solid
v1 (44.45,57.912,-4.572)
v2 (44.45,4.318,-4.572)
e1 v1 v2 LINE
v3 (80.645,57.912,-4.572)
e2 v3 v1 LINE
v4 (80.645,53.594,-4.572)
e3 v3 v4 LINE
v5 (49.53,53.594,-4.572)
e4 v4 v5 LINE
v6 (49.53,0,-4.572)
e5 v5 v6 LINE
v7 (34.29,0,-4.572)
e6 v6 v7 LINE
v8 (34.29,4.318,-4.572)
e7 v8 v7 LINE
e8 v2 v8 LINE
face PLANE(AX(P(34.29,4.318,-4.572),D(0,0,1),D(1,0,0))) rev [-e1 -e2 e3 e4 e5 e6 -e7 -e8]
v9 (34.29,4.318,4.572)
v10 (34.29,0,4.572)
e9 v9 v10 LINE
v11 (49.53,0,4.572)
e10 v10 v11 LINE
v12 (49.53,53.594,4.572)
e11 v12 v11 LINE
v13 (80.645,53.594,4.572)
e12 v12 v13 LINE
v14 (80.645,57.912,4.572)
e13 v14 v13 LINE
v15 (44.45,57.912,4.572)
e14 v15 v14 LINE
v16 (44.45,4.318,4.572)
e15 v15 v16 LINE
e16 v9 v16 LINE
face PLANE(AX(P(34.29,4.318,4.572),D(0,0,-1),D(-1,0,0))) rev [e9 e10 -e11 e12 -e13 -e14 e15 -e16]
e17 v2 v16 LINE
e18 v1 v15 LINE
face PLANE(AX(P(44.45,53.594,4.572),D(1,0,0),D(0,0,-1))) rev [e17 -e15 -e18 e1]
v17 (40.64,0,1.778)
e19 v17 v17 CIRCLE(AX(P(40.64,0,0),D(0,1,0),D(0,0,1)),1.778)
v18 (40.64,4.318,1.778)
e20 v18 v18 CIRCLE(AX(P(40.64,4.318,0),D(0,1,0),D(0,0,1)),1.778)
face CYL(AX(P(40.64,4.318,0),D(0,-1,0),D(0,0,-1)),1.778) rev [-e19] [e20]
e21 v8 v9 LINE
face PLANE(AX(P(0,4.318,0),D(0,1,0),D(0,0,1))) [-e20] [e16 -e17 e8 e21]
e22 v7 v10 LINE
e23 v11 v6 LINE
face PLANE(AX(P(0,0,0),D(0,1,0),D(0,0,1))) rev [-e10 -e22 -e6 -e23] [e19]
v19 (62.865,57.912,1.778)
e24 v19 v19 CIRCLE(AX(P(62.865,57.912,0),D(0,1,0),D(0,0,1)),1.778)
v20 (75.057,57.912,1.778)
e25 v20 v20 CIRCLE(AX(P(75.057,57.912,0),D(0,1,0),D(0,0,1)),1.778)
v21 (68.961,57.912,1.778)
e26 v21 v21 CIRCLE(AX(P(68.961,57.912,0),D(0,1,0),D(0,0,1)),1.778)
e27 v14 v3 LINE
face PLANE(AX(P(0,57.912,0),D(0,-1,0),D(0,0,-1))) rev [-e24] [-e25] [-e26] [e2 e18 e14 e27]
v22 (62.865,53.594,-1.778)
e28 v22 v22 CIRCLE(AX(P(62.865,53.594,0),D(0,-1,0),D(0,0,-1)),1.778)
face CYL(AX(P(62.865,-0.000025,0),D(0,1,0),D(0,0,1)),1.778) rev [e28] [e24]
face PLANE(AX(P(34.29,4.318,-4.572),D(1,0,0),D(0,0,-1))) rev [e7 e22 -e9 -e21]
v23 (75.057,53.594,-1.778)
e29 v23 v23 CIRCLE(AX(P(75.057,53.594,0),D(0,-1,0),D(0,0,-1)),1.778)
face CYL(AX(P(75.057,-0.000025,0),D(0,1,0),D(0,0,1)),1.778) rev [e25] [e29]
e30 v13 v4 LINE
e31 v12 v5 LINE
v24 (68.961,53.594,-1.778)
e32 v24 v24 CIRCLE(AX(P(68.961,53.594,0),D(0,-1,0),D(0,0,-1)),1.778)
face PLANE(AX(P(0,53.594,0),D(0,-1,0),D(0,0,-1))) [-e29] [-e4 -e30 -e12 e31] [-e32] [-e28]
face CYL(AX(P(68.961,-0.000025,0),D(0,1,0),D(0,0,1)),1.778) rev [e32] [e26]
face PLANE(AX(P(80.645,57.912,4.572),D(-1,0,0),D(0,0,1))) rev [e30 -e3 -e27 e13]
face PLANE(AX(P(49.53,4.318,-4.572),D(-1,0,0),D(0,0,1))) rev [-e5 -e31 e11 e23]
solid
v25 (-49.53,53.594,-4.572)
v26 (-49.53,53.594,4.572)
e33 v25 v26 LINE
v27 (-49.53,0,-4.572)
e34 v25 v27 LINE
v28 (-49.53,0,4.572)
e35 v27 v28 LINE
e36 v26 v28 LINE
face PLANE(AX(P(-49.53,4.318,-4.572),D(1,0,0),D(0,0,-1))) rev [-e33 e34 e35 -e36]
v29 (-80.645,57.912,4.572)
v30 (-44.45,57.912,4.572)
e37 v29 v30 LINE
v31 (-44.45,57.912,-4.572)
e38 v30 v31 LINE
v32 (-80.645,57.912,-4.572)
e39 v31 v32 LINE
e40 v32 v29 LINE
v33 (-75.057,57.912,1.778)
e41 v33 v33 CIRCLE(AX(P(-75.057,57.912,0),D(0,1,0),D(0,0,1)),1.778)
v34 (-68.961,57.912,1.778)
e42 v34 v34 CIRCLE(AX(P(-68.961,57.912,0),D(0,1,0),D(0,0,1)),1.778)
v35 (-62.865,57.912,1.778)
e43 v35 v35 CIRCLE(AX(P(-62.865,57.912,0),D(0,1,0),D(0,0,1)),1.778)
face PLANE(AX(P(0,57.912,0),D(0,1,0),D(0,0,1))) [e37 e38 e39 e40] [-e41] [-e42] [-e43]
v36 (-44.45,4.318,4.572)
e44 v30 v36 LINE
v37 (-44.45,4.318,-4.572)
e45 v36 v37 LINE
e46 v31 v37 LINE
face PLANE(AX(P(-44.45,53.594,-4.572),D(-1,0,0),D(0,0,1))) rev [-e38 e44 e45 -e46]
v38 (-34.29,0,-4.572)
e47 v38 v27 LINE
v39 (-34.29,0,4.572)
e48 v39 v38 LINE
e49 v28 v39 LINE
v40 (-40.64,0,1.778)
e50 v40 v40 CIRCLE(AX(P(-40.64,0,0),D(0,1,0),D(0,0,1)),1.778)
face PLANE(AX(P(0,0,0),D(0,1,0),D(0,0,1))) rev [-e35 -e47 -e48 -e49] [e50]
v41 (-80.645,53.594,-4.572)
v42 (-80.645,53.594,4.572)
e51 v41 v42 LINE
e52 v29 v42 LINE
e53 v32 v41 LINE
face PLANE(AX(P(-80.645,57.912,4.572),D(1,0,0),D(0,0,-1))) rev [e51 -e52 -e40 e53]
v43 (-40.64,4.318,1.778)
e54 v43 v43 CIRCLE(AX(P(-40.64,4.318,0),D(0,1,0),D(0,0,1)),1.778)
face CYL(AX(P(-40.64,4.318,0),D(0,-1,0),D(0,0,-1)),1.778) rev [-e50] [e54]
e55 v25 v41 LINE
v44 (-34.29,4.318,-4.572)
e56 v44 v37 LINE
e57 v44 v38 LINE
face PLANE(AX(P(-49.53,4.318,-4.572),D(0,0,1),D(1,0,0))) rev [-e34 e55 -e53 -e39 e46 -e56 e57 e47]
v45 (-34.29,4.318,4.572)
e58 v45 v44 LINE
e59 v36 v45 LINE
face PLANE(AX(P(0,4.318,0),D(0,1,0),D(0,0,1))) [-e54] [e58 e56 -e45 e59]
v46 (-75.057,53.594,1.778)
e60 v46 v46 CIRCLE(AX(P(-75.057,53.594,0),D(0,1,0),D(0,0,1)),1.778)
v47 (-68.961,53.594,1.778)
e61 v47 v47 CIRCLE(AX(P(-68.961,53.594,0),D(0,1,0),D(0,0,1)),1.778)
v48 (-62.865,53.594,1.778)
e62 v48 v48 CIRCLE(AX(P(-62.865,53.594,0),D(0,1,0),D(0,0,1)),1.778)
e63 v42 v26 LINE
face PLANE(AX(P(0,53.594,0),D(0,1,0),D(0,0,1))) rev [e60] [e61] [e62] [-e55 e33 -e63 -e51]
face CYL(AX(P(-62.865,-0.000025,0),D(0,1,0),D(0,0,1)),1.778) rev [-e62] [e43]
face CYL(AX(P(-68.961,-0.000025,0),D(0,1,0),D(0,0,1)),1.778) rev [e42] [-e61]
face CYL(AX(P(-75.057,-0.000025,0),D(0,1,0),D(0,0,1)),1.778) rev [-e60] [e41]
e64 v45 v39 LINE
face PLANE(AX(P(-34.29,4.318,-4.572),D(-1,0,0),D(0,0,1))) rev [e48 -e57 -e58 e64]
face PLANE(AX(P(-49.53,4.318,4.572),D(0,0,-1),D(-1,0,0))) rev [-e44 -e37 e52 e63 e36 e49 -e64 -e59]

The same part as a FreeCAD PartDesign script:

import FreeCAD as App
import Part
import Sketcher
from FreeCAD import Vector
Q = App.Units.Quantity


def add_polygon(sketch, points):
    """Adds a closed chain of lines whose ends are joined by coincident constraints."""
    first, n = sketch.GeometryCount, len(points)
    for a, b in zip(points, points[1:] + points[:1]):
        sketch.addGeometry(Part.LineSegment(App.Vector(*a, 0), App.Vector(*b, 0)), False)
    for i in range(n):
        sketch.addConstraint(Sketcher.Constraint("Coincident", first + i, 2, first + (i + 1) % n, 1))

doc = App.newDocument("Part")
body = doc.addObject("PartDesign::Body", "Body")

# Sketch on XZ plane
sketch1 = body.newObject("Sketcher::SketchObject", "Sketch")
sketch1.AttachmentSupport = (doc.getObject("XZ_Plane"), [""])
sketch1.MapMode = "FlatFace"
add_polygon(sketch1, [(-49.53, -4.572), (-49.53, 4.572), (-34.29, 4.572), (-34.29, -4.572)])  # lines 0-3
sketch1.addGeometry(Part.Circle(Vector(-40.64, 0, 0), Vector(0, 0, 1), 1.778), False)  # 4
sketch1.addConstraint([
    Sketcher.Constraint("Vertical", 0),
    Sketcher.Constraint("Horizontal", 1),
    Sketcher.Constraint("Vertical", 2),
    Sketcher.Constraint("Horizontal", 3),
    Sketcher.Constraint("PointOnObject", 4, 3, -1),
    Sketcher.Constraint("Diameter", 4, Q("0.14 in")),
    Sketcher.Constraint("DistanceX", 1, 1, 1, 2, Q("0.6 in")),
    Sketcher.Constraint("DistanceY", 0, 1, 0, 2, Q("0.36 in")),
    Sketcher.Constraint("DistanceX", 4, 3, -1, 1, Q("1.6 in")),
    Sketcher.Constraint("DistanceX", 0, 2, -1, 1, Q("1.95 in")),
    Sketcher.Constraint("DistanceY", -1, 1, 0, 2, Q("0.18 in")),
])
pad1 = body.newObject("PartDesign::Pad", "Pad")
pad1.Profile = sketch1
pad1.Length = Q("0.17 in")
pad1.Reversed = True
body2 = doc.addObject("PartDesign::Body", "Body001")

# Sketch on XZ plane
sketch2 = body2.newObject("Sketcher::SketchObject", "Sketch001")
sketch2.AttachmentSupport = (doc.getObject("XZ_Plane001"), [""])
sketch2.MapMode = "FlatFace"
add_polygon(sketch2, [(34.29, -4.572), (34.29, 4.572), (49.53, 4.572), (49.53, -4.572)])  # lines 0-3
sketch2.addGeometry(Part.Circle(Vector(40.64, 0, 0), Vector(0, 0, 1), 1.778), False)  # 4
sketch2.addConstraint([
    Sketcher.Constraint("Vertical", 0),
    Sketcher.Constraint("Horizontal", 1),
    Sketcher.Constraint("Vertical", 2),
    Sketcher.Constraint("Horizontal", 3),
    Sketcher.Constraint("PointOnObject", 4, 3, -1),
    Sketcher.Constraint("Diameter", 4, Q("0.14 in")),
    Sketcher.Constraint("DistanceX", 1, 1, 1, 2, Q("0.6 in")),
    Sketcher.Constraint("DistanceY", 0, 1, 0, 2, Q("0.36 in")),
    Sketcher.Constraint("DistanceX", -1, 1, 4, 3, Q("1.6 in")),
    Sketcher.Constraint("DistanceX", -1, 1, 0, 2, Q("1.35 in")),
    Sketcher.Constraint("DistanceY", -1, 1, 0, 2, Q("0.18 in")),
])
pad2 = body2.newObject("PartDesign::Pad", "Pad001")
pad2.Profile = sketch2
pad2.Length = Q("0.17 in")
pad2.Reversed = True
body.AllowCompound = True
doc.recompute()

boolean = body.newObject("PartDesign::Boolean", "Boolean")
boolean.Type = "Fuse"
boolean.addObjects([body2])

# Sketch on XZ plane
sketch3 = body.newObject("Sketcher::SketchObject", "Sketch002")
sketch3.AttachmentSupport = (doc.getObject("XZ_Plane"), [""])
sketch3.MapMode = "FlatFace"
sketch3.AttachmentOffset = App.Placement(Vector(0, 0, -0.17 * 25.4), App.Rotation())
add_polygon(sketch3, [(-49.53, -4.572), (-49.53, 4.572), (-44.45, 4.572), (-44.45, -4.572)])  # lines 0-3
add_polygon(sketch3, [(44.45, -4.572), (44.45, 4.572), (49.53, 4.572), (49.53, -4.572)])  # lines 4-7
sketch3.addConstraint([
    Sketcher.Constraint("Vertical", 0),
    Sketcher.Constraint("Horizontal", 1),
    Sketcher.Constraint("Vertical", 2),
    Sketcher.Constraint("Horizontal", 3),
    Sketcher.Constraint("Vertical", 4),
    Sketcher.Constraint("Horizontal", 5),
    Sketcher.Constraint("Vertical", 6),
    Sketcher.Constraint("Horizontal", 7),
    Sketcher.Constraint("Symmetric", 2, 2, 4, 2, -1, 1),
    Sketcher.Constraint("Symmetric", 0, 2, 6, 2, -1, 1),
    Sketcher.Constraint("Horizontal", 1, 2, 4, 2),
    Sketcher.Constraint("DistanceX", 1, 1, 1, 2, Q("0.2 in")),
    Sketcher.Constraint("DistanceY", 0, 1, 0, 2, Q("0.36 in")),
    Sketcher.Constraint("DistanceX", 1, 2, 4, 2, Q("3.5 in")),
])
pad3 = body.newObject("PartDesign::Pad", "Pad002")
pad3.Profile = sketch3
pad3.Length = Q("1.94 in")
pad3.Reversed = True

# Sketch on XZ plane
sketch4 = body.newObject("Sketcher::SketchObject", "Sketch003")
sketch4.AttachmentSupport = (doc.getObject("XZ_Plane"), [""])
sketch4.MapMode = "FlatFace"
sketch4.AttachmentOffset = App.Placement(Vector(0, 0, -2.11 * 25.4), App.Rotation())
add_polygon(sketch4, [(-80.645, -4.572), (-80.645, 4.572), (-44.45, 4.572), (-44.45, -4.572)])  # lines 0-3
add_polygon(sketch4, [(44.45, -4.572), (44.45, 4.572), (80.645, 4.572), (80.645, -4.572)])  # lines 4-7
sketch4.addConstraint([
    Sketcher.Constraint("Vertical", 0),
    Sketcher.Constraint("Horizontal", 1),
    Sketcher.Constraint("Vertical", 2),
    Sketcher.Constraint("Horizontal", 3),
    Sketcher.Constraint("Vertical", 4),
    Sketcher.Constraint("Horizontal", 5),
    Sketcher.Constraint("Vertical", 6),
    Sketcher.Constraint("Horizontal", 7),
    Sketcher.Constraint("Symmetric", 2, 2, 4, 2, -1, 1),
    Sketcher.Constraint("Symmetric", 0, 2, 6, 2, -1, 1),
    Sketcher.Constraint("Horizontal", 1, 2, 4, 2),
    Sketcher.Constraint("DistanceY", 0, 1, 0, 2, Q("0.36 in")),
    Sketcher.Constraint("DistanceX", 1, 2, 4, 2, Q("3.5 in")),
    Sketcher.Constraint("DistanceX", 1, 1, 1, 2, Q("1.425 in")),
])
pad4 = body.newObject("PartDesign::Pad", "Pad003")
pad4.Profile = sketch4
pad4.Length = Q("0.17 in")
pad4.Reversed = True

# Sketch on XZ plane
sketch5 = body.newObject("Sketcher::SketchObject", "Sketch004")
sketch5.AttachmentSupport = (doc.getObject("XZ_Plane"), [""])
sketch5.MapMode = "FlatFace"
sketch5.AttachmentOffset = App.Placement(Vector(0, 0, -2.28 * 25.4), App.Rotation())
sketch5.addGeometry([
    Part.Circle(Vector(-75.057, 0, 0), Vector(0, 0, 1), 1.778),
    Part.Circle(Vector(75.057, 0, 0), Vector(0, 0, 1), 1.778),
], False)
sketch5.addConstraint([
    Sketcher.Constraint("Equal", 0, 1),
    Sketcher.Constraint("Symmetric", 0, 3, 1, 3, -1, 1),
    Sketcher.Constraint("PointOnObject", 0, 3, -1),
    Sketcher.Constraint("Diameter", 0, Q("0.14 in")),
    Sketcher.Constraint("DistanceX", 0, 3, 1, 3, Q("5.91 in")),
])
pocket1 = body.newObject("PartDesign::Pocket", "Pocket")
pocket1.Profile = sketch5
pocket1.Type = "ThroughAll"
pocket1.Reversed = True

# Sketch on XZ plane
sketch6 = body.newObject("Sketcher::SketchObject", "Sketch005")
sketch6.AttachmentSupport = (doc.getObject("XZ_Plane"), [""])
sketch6.MapMode = "FlatFace"
sketch6.AttachmentOffset = App.Placement(Vector(0, 0, -2.28 * 25.4), App.Rotation())
sketch6.addGeometry([
    Part.Circle(Vector(-68.961, 0, 0), Vector(0, 0, 1), 1.778),
    Part.Circle(Vector(-62.865, 0, 0), Vector(0, 0, 1), 1.778),
    Part.Circle(Vector(62.865, 0, 0), Vector(0, 0, 1), 1.778),
    Part.Circle(Vector(68.961, 0, 0), Vector(0, 0, 1), 1.778),
], False)
sketch6.addConstraint([
    Sketcher.Constraint("Equal", 0, 1),
    Sketcher.Constraint("Equal", 1, 2),
    Sketcher.Constraint("Equal", 2, 3),
    Sketcher.Constraint("Symmetric", 1, 3, 2, 3, -1, 1),
    Sketcher.Constraint("Symmetric", 0, 3, 3, 3, -1, 1),
    Sketcher.Constraint("PointOnObject", 0, 3, -1),
    Sketcher.Constraint("PointOnObject", 1, 3, -1),
    Sketcher.Constraint("Diameter", 0, Q("0.14 in")),
    Sketcher.Constraint("DistanceX", 0, 3, 1, 3, Q("0.24 in")),
    Sketcher.Constraint("DistanceX", 1, 3, 2, 3, Q("4.95 in")),
])
pocket2 = body.newObject("PartDesign::Pocket", "Pocket001")
pocket2.Profile = sketch6
pocket2.Type = "ThroughAll"
pocket2.Reversed = True

doc.recompute()
